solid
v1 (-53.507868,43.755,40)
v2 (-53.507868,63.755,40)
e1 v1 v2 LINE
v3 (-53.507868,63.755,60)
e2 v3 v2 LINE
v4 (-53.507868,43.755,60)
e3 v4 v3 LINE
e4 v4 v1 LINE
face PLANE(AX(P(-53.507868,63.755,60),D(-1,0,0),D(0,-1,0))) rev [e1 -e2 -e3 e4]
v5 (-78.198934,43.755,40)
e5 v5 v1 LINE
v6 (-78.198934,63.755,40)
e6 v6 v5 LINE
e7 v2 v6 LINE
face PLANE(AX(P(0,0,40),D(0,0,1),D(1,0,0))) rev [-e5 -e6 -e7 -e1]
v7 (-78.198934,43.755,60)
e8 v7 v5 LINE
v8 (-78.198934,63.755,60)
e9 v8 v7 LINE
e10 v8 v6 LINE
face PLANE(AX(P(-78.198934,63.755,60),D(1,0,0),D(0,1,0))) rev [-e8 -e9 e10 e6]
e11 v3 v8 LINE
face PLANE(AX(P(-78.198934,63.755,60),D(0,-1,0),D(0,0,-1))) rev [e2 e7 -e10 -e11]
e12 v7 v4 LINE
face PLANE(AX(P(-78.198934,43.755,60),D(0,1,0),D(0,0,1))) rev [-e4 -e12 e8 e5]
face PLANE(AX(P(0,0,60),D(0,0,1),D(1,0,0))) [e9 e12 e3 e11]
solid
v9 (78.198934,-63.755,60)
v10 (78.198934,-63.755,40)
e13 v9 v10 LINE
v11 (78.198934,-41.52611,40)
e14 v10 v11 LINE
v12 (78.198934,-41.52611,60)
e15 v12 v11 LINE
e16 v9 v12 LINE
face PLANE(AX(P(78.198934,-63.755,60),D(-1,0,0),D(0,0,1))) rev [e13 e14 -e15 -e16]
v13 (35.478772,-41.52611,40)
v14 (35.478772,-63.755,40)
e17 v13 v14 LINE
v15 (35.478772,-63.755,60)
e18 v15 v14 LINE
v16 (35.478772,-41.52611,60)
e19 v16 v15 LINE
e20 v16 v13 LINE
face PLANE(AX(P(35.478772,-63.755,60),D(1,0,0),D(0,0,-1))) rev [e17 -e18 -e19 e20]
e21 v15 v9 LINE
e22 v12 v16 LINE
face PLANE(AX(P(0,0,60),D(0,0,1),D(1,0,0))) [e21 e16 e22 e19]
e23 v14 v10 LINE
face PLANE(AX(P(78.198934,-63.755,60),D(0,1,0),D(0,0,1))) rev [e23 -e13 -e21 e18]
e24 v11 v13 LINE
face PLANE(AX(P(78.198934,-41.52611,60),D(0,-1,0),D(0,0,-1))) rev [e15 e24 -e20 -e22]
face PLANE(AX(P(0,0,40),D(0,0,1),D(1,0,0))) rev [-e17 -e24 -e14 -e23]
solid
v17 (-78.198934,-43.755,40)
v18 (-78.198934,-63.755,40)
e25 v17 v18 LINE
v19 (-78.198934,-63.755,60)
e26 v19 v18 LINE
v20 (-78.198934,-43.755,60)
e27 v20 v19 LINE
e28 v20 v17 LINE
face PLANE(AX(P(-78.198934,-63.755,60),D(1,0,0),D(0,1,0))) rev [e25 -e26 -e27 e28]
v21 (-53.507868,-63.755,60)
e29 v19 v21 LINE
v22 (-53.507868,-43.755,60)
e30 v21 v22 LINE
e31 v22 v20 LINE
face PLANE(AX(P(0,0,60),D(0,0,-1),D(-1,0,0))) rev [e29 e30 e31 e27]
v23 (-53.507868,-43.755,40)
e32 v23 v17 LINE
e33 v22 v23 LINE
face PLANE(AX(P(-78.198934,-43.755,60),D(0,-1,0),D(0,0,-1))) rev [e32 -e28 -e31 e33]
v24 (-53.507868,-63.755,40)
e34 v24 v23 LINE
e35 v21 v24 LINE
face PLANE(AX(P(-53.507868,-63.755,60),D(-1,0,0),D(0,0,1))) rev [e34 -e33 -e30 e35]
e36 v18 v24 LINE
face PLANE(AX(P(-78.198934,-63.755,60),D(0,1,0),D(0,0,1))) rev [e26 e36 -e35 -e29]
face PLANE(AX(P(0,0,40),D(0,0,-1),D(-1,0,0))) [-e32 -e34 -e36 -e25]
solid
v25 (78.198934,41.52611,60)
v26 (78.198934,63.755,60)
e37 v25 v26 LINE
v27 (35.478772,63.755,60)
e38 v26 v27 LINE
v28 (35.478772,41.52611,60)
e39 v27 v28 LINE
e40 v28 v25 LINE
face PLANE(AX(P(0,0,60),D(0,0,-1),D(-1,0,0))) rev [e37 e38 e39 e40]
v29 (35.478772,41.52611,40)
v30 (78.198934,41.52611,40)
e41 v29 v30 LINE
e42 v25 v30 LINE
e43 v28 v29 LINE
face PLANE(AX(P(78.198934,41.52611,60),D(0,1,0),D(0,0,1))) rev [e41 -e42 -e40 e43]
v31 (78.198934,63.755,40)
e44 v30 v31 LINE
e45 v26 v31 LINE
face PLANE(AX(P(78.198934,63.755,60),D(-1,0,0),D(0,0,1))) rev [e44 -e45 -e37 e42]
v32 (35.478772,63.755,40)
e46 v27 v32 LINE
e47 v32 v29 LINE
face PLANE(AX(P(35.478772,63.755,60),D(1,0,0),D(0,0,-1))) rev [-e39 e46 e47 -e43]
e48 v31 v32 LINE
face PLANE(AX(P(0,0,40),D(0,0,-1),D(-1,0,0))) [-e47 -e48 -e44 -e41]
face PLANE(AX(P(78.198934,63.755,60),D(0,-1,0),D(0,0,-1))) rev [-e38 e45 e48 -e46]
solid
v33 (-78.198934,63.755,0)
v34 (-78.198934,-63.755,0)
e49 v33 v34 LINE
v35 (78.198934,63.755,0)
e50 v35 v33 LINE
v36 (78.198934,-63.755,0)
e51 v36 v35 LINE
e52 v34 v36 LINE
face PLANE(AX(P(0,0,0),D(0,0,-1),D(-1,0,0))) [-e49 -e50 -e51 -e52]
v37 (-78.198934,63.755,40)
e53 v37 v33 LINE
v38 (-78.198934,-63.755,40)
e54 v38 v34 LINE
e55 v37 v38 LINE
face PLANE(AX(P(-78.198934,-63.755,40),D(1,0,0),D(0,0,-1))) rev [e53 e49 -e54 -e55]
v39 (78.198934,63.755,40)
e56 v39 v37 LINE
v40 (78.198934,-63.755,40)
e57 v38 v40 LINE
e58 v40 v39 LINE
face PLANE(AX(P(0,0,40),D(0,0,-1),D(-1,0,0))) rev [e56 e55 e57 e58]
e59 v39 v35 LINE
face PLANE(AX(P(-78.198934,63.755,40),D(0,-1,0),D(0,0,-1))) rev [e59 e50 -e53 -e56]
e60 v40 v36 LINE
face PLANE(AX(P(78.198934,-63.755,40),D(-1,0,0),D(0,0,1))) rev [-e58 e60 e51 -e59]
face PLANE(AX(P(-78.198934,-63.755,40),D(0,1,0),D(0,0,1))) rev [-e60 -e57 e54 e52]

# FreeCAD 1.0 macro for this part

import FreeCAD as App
import Part
import Sketcher

V = App.Vector
Q = App.Units.Quantity


def add_polygon(sketch, points):
    """Adds a closed chain of lines whose ends are joined by coincident constraints."""
    first, n = sketch.GeometryCount, len(points)
    for a, b in zip(points, points[1:] + points[:1]):
        sketch.addGeometry(Part.LineSegment(App.Vector(*a, 0), App.Vector(*b, 0)), False)
    for i in range(n):
        sketch.addConstraint(Sketcher.Constraint("Coincident", first + i, 2, first + (i + 1) % n, 1))

doc = App.newDocument("Part")
body = doc.addObject("PartDesign::Body", "Body")

# Sketch on XY plane
sketch1 = doc.addObject("Sketcher::SketchObject", "Sketch")
body.addObject(sketch1)
sketch1.AttachmentSupport = (doc.XY_Plane, [""])
sketch1.MapMode = "FlatFace"
add_polygon(sketch1, [(-78, 64), (-78, -64), (78, -64), (78, 64)])  # lines 0-3
sketch1.addConstraint(Sketcher.Constraint("Vertical", 0))
sketch1.addConstraint(Sketcher.Constraint("Horizontal", 1))
sketch1.addConstraint(Sketcher.Constraint("Vertical", 2))
sketch1.addConstraint(Sketcher.Constraint("Horizontal", 3))
sketch1.addConstraint(Sketcher.Constraint("Symmetric", 0, 2, 2, 2, -1, 1))
sketch1.addConstraint(Sketcher.Constraint("DistanceY", 0, 2, 0, 1, Q("127.51 mm")))
sketch1.addConstraint(Sketcher.Constraint("DistanceX", 1, 1, 1, 2, Q("156.397869 mm")))
pad1 = doc.addObject("PartDesign::Pad", "Pad")
body.addObject(pad1)
pad1.Profile = sketch1
pad1.Length = 40
body2 = doc.addObject("PartDesign::Body", "Body001")

# Sketch on XY plane
sketch2 = doc.addObject("Sketcher::SketchObject", "Sketch001")
body2.addObject(sketch2)
sketch2.AttachmentSupport = (doc.getObject("XY_Plane001"), [""])
sketch2.MapMode = "FlatFace"
sketch2.AttachmentOffset = App.Placement(V(0, 0, 40), App.Rotation())
add_polygon(sketch2, [(-78, -44), (-78, -64), (-54, -64), (-54, -44)])  # lines 0-3
sketch2.addConstraint(Sketcher.Constraint("Vertical", 0))
sketch2.addConstraint(Sketcher.Constraint("Horizontal", 1))
sketch2.addConstraint(Sketcher.Constraint("Vertical", 2))
sketch2.addConstraint(Sketcher.Constraint("Horizontal", 3))
sketch2.addConstraint(Sketcher.Constraint("DistanceY", 0, 2, 0, 1, Q("20 mm")))
sketch2.addConstraint(Sketcher.Constraint("DistanceY", 0, 2, -1, 1, Q("63.755 mm")))
sketch2.addConstraint(Sketcher.Constraint("DistanceX", 1, 1, 1, 2, Q("24.691066 mm")))
sketch2.addConstraint(Sketcher.Constraint("DistanceX", 1, 2, -1, 1, Q("53.507868 mm")))
pad2 = doc.addObject("PartDesign::Pad", "Pad001")
body2.addObject(pad2)
pad2.Profile = sketch2
pad2.Length = 20
body3 = doc.addObject("PartDesign::Body", "Body002")

# Sketch on XY plane
sketch3 = doc.addObject("Sketcher::SketchObject", "Sketch002")
body3.addObject(sketch3)
sketch3.AttachmentSupport = (doc.getObject("XY_Plane002"), [""])
sketch3.MapMode = "FlatFace"
sketch3.AttachmentOffset = App.Placement(V(0, 0, 40), App.Rotation())
add_polygon(sketch3, [(-78, 64), (-78, 44), (-54, 44), (-54, 64)])  # lines 0-3
sketch3.addConstraint(Sketcher.Constraint("Vertical", 0))
sketch3.addConstraint(Sketcher.Constraint("Horizontal", 1))
sketch3.addConstraint(Sketcher.Constraint("Vertical", 2))
sketch3.addConstraint(Sketcher.Constraint("Horizontal", 3))
sketch3.addConstraint(Sketcher.Constraint("DistanceY", 0, 2, 0, 1, Q("20 mm")))
sketch3.addConstraint(Sketcher.Constraint("DistanceY", -1, 1, 0, 2, Q("43.755 mm")))
sketch3.addConstraint(Sketcher.Constraint("DistanceX", 1, 1, 1, 2, Q("24.691066 mm")))
sketch3.addConstraint(Sketcher.Constraint("DistanceX", 1, 2, -1, 1, Q("53.507868 mm")))
pad3 = doc.addObject("PartDesign::Pad", "Pad002")
body3.addObject(pad3)
pad3.Profile = sketch3
pad3.Length = 20
body4 = doc.addObject("PartDesign::Body", "Body003")

# Sketch on XY plane
sketch4 = doc.addObject("Sketcher::SketchObject", "Sketch003")
body4.addObject(sketch4)
sketch4.AttachmentSupport = (doc.getObject("XY_Plane003"), [""])
sketch4.MapMode = "FlatFace"
sketch4.AttachmentOffset = App.Placement(V(0, 0, 40), App.Rotation())
add_polygon(sketch4, [(35, 64), (35, 42), (78, 42), (78, 64)])  # lines 0-3
sketch4.addConstraint(Sketcher.Constraint("Vertical", 0))
sketch4.addConstraint(Sketcher.Constraint("Horizontal", 1))
sketch4.addConstraint(Sketcher.Constraint("Vertical", 2))
sketch4.addConstraint(Sketcher.Constraint("Horizontal", 3))
sketch4.addConstraint(Sketcher.Constraint("DistanceY", -1, 1, 2, 2, Q("63.755 mm")))
sketch4.addConstraint(Sketcher.Constraint("DistanceY", 0, 2, 0, 1, Q("22.22889 mm")))
sketch4.addConstraint(Sketcher.Constraint("DistanceX", 1, 1, 1, 2, Q("42.720163 mm")))
sketch4.addConstraint(Sketcher.Constraint("DistanceX", -1, 1, 0, 2, Q("35.478772 mm")))
pad4 = doc.addObject("PartDesign::Pad", "Pad003")
body4.addObject(pad4)
pad4.Profile = sketch4
pad4.Length = 20
body5 = doc.addObject("PartDesign::Body", "Body004")

# Sketch on XY plane
sketch5 = doc.addObject("Sketcher::SketchObject", "Sketch004")
body5.addObject(sketch5)
sketch5.AttachmentSupport = (doc.getObject("XY_Plane004"), [""])
sketch5.MapMode = "FlatFace"
sketch5.AttachmentOffset = App.Placement(V(0, 0, 40), App.Rotation())
add_polygon(sketch5, [(35, -42), (35, -64), (78, -64), (78, -42)])  # lines 0-3
sketch5.addConstraint(Sketcher.Constraint("Vertical", 0))
sketch5.addConstraint(Sketcher.Constraint("Horizontal", 1))
sketch5.addConstraint(Sketcher.Constraint("Vertical", 2))
sketch5.addConstraint(Sketcher.Constraint("Horizontal", 3))
sketch5.addConstraint(Sketcher.Constraint("DistanceY", 0, 2, -1, 1, Q("63.755 mm")))
sketch5.addConstraint(Sketcher.Constraint("DistanceY", 0, 2, 0, 1, Q("22.22889 mm")))
sketch5.addConstraint(Sketcher.Constraint("DistanceX", 1, 1, 1, 2, Q("42.720163 mm")))
sketch5.addConstraint(Sketcher.Constraint("DistanceX", -1, 1, 0, 2, Q("35.478772 mm")))
pad5 = doc.addObject("PartDesign::Pad", "Pad004")
body5.addObject(pad5)
pad5.Profile = sketch5
pad5.Length = 20

doc.recompute()
